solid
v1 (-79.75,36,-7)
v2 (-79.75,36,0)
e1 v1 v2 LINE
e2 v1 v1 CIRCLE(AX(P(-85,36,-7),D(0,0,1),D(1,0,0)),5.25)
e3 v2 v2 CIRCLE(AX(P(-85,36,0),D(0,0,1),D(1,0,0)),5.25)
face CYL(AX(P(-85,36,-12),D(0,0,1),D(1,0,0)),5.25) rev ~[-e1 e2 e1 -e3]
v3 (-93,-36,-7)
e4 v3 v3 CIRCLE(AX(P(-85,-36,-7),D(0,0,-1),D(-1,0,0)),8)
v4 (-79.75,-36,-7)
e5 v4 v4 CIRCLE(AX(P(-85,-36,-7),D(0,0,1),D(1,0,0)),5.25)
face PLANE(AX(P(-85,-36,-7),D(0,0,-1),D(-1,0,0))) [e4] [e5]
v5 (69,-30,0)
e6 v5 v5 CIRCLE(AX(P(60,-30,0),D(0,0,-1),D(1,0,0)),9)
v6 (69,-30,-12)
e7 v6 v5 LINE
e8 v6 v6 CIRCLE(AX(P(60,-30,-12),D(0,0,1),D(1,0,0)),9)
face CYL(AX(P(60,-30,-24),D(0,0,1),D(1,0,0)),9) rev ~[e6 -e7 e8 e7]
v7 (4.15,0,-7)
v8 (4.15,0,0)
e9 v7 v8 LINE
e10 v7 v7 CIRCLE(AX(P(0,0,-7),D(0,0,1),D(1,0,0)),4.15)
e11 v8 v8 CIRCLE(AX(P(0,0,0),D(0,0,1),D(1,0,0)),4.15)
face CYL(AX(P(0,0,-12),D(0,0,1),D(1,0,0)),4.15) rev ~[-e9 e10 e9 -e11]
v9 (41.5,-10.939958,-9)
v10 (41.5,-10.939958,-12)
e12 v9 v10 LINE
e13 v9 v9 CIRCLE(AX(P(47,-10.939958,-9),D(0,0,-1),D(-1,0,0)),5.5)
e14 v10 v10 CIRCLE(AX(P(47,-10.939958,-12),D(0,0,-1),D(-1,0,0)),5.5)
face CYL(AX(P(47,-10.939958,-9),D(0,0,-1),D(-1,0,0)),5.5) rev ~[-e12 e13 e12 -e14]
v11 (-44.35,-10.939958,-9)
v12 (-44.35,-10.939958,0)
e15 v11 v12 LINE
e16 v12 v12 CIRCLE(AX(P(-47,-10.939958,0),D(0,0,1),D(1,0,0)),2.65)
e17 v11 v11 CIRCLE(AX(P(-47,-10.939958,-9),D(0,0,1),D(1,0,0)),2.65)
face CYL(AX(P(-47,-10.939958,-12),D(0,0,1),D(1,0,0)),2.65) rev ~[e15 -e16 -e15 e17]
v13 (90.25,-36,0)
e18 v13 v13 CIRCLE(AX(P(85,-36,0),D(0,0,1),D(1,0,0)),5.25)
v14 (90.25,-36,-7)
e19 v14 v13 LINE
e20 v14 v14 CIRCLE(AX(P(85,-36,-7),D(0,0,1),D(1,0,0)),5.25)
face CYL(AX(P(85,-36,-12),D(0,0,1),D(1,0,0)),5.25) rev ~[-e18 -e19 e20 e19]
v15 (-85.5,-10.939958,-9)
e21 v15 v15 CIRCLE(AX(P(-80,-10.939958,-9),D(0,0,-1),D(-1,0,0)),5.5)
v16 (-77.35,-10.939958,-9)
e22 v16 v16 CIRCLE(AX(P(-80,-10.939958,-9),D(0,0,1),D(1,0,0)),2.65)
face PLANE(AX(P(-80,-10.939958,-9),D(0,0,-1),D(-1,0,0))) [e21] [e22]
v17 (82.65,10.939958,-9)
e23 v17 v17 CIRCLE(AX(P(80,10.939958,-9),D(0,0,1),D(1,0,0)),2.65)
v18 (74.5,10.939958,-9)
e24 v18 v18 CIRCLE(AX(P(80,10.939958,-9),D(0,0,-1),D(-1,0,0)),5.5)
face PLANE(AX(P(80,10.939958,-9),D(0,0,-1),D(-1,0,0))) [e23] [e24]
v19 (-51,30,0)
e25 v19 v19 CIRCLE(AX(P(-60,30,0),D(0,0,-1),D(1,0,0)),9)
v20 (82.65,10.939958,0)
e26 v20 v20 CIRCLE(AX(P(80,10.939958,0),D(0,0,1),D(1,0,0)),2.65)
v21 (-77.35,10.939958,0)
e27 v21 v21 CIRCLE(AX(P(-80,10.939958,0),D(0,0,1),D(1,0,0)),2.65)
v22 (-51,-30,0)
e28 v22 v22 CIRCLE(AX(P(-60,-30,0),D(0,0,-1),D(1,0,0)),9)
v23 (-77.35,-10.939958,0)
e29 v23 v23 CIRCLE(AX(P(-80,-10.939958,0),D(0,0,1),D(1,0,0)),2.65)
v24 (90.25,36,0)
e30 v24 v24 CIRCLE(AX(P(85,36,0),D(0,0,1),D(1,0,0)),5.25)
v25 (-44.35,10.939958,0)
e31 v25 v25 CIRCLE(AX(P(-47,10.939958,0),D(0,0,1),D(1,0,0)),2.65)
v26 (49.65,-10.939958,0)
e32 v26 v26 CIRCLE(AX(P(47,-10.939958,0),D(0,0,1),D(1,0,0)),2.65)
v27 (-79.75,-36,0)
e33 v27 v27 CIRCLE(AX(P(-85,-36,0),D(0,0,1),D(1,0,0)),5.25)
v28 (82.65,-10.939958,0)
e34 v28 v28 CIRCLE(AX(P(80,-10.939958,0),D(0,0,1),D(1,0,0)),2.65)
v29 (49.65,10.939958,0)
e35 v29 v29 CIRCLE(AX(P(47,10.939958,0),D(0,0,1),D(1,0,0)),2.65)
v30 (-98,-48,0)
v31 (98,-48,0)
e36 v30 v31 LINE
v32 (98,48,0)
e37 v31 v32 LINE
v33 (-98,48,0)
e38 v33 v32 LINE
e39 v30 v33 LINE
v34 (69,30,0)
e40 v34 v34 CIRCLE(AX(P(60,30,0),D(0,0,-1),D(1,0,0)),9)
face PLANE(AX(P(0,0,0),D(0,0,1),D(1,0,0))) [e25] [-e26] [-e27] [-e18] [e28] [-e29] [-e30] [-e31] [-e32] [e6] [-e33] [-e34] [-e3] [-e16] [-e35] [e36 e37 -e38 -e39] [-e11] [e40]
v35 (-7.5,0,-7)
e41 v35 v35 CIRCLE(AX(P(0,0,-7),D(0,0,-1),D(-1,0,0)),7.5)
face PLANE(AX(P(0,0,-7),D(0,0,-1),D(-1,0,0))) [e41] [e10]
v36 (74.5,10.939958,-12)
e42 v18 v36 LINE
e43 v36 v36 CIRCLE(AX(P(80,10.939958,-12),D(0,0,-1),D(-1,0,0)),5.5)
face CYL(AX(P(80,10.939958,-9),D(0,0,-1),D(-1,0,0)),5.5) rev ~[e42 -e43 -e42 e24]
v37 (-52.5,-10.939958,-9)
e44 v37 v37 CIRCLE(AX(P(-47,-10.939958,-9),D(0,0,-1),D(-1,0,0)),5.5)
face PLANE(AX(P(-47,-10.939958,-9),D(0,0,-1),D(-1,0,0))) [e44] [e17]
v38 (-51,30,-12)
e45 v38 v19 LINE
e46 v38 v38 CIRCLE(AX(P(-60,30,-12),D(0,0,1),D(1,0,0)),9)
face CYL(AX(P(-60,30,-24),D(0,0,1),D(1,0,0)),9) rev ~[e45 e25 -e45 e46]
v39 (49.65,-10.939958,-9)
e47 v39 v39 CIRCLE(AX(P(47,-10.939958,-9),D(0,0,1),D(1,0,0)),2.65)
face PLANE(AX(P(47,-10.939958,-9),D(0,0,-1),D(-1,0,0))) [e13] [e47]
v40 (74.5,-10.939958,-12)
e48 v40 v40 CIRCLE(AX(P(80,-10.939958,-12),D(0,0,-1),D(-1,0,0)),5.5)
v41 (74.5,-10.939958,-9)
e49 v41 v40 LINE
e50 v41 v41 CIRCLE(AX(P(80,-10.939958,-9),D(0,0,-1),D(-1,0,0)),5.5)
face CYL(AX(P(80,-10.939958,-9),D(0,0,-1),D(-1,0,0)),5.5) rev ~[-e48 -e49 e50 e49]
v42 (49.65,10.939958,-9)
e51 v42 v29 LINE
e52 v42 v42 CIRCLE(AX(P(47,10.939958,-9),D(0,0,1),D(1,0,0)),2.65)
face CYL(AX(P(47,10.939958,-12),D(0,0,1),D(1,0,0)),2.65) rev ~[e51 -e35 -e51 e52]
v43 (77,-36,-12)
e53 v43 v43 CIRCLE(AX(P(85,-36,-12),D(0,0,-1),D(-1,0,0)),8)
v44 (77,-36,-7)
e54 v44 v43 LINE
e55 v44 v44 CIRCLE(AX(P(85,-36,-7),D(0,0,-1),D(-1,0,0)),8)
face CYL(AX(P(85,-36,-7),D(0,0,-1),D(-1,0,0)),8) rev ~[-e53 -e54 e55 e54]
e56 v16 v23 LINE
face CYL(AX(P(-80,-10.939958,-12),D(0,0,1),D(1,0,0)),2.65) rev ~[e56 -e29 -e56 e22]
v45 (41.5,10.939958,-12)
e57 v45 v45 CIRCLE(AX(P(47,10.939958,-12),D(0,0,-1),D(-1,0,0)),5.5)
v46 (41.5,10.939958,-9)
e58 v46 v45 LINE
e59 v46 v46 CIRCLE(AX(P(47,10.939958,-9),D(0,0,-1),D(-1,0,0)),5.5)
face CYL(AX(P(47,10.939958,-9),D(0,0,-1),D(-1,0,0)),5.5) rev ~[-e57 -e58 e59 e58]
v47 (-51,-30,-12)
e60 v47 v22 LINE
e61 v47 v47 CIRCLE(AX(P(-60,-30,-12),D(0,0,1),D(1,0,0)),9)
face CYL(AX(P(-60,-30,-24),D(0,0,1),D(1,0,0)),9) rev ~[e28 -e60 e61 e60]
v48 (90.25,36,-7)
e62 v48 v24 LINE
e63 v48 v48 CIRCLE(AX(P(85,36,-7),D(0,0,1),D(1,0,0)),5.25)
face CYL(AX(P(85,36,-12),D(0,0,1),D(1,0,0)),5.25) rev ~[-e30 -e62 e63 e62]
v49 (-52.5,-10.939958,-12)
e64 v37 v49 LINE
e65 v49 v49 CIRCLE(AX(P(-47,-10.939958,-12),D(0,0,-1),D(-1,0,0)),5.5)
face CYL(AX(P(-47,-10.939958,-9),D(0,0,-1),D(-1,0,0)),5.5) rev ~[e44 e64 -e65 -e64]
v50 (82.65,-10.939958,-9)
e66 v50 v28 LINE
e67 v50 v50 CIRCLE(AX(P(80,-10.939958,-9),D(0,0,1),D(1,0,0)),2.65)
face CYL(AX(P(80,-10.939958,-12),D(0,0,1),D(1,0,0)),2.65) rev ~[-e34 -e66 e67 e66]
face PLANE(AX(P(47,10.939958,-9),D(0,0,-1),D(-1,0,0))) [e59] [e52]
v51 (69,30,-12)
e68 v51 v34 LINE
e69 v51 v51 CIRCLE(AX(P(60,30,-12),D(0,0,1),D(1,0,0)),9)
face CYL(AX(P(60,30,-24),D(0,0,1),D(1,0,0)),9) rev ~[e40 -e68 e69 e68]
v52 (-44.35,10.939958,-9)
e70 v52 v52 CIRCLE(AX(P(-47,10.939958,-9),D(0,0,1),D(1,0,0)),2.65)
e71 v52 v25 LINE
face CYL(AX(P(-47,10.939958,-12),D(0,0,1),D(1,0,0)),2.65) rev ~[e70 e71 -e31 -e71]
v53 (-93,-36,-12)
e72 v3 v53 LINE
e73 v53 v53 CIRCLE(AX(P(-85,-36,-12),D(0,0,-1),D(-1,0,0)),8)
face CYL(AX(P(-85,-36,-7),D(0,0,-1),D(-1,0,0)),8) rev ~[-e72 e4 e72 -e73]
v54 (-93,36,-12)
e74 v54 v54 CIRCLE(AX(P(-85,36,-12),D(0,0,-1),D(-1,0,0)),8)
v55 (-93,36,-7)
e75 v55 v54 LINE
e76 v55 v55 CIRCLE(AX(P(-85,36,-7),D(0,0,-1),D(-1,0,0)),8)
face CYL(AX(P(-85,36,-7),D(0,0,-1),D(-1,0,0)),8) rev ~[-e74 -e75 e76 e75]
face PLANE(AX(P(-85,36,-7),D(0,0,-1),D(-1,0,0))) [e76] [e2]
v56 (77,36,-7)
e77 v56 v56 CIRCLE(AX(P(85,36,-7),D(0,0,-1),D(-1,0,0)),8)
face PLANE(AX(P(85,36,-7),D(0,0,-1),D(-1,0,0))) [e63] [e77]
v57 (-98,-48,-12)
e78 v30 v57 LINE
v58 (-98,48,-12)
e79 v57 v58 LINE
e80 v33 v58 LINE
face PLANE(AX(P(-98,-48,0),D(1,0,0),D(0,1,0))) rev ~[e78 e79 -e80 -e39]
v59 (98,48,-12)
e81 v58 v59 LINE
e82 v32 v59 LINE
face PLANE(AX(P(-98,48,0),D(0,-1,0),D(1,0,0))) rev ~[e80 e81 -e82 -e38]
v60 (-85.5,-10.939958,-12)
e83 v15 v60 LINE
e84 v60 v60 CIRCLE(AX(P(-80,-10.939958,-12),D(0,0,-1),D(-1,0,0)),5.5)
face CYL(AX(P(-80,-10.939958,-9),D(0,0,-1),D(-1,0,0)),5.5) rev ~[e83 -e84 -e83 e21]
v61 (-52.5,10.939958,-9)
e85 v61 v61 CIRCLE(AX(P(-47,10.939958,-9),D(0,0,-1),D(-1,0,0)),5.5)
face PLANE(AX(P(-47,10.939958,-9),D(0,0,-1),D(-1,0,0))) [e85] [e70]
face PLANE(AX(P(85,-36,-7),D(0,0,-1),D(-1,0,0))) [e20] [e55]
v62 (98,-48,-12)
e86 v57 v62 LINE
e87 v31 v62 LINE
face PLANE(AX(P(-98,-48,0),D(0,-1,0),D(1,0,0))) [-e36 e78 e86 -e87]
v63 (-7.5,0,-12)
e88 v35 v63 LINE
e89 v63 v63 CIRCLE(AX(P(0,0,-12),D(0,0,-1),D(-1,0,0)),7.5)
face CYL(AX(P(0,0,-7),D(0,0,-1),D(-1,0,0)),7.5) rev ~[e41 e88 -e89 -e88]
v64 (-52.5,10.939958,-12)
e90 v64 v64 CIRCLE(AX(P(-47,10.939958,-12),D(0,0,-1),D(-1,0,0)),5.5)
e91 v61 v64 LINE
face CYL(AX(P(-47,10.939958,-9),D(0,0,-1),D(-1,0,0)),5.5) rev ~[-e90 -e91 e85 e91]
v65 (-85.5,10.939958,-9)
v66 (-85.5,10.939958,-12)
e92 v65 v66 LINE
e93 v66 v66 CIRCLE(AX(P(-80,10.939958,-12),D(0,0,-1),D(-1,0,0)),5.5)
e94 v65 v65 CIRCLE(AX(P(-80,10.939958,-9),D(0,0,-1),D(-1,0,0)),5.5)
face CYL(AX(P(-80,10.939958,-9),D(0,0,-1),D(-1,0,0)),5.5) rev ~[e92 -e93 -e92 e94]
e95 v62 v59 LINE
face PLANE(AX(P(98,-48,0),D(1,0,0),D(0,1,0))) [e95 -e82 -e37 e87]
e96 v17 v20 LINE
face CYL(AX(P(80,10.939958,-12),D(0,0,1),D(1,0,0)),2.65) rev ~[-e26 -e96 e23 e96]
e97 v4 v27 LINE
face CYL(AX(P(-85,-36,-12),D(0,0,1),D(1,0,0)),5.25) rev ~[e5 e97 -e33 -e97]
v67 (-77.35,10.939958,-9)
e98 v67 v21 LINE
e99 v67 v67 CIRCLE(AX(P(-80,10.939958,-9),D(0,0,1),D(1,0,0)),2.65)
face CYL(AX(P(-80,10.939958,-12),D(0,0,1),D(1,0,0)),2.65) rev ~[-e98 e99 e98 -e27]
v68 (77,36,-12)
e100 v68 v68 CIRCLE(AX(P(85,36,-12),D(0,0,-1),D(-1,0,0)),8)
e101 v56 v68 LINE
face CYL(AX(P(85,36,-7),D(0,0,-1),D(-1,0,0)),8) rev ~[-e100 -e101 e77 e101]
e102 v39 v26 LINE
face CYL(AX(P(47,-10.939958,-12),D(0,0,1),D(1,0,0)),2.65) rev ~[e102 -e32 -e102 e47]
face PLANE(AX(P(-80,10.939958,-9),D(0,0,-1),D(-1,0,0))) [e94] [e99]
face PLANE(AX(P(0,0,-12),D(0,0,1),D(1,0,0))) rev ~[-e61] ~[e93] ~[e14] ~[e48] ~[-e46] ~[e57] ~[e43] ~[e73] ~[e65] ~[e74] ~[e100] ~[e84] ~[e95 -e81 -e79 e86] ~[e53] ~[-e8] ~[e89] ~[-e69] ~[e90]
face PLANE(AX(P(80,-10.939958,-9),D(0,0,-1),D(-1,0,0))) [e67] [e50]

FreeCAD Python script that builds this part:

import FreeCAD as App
import Part
import Sketcher

V = App.Vector
Q = App.Units.Quantity

doc = App.newDocument("Part")
body = doc.addObject("PartDesign::Body", "Body")

sketch1 = body.newObject("Sketcher::SketchObject", "Sketch")
sketch1.AttachmentSupport = (doc.getObject("XY_Plane"), [""])
sketch1.MapMode = "FlatFace"
sketch1.addGeometry([
    Part.LineSegment(V(-98, 48, 0), V(-98, -48, 0)),
    Part.LineSegment(V(-98, -48, 0), V(98, -48, 0)),
    Part.LineSegment(V(98, -48, 0), V(98, 48, 0)),
    Part.LineSegment(V(98, 48, 0), V(-98, 48, 0)),
], False)
sketch1.addConstraint([
    Sketcher.Constraint("Coincident", 0, 2, 1, 1),
    Sketcher.Constraint("Coincident", 1, 2, 2, 1),
    Sketcher.Constraint("Coincident", 2, 2, 3, 1),
    Sketcher.Constraint("Coincident", 3, 2, 0, 1),
    Sketcher.Constraint("Vertical", 0),
    Sketcher.Constraint("Horizontal", 1),
    Sketcher.Constraint("Vertical", 2),
    Sketcher.Constraint("Horizontal", 3),
    Sketcher.Constraint("Symmetric", 0, 2, 2, 2, -1, 1),
    Sketcher.Constraint("DistanceX", 1, 1, 1, 2, Q("196 mm")),
    Sketcher.Constraint("DistanceY", 0, 2, 0, 1, Q("96 mm")),
])
pad1 = body.newObject("PartDesign::Pad", "Pad")
pad1.Profile = sketch1
pad1.Length = 12
pad1.Reversed = True

sketch2 = body.newObject("Sketcher::SketchObject", "Sketch001")
sketch2.AttachmentSupport = (doc.getObject("XY_Plane"), [""])
sketch2.MapMode = "FlatFace"
sketch2.AttachmentOffset = App.Placement(V(0, 0, -12), App.Rotation())
sketch2.addGeometry([
    Part.Circle(V(85, 36, 0), V(0, 0, 1), 5),
    Part.Circle(V(-85, 36, 0), V(0, 0, 1), 5),
    Part.Circle(V(-85, -36, 0), V(0, 0, 1), 5),
    Part.Circle(V(85, -36, 0), V(0, 0, 1), 5),
], False)
sketch2.addConstraint([
    Sketcher.Constraint("Equal", 0, 1),
    Sketcher.Constraint("Equal", 1, 2),
    Sketcher.Constraint("Equal", 2, 3),
    Sketcher.Constraint("Symmetric", 0, 3, 2, 3, -1, 1),
    Sketcher.Constraint("Symmetric", 1, 3, 3, 3, -1, 1),
    Sketcher.Constraint("Symmetric", 0, 3, 1, 3, -2),
    Sketcher.Constraint("Diameter", 0, Q("10.5 mm")),
    Sketcher.Constraint("DistanceX", -1, 1, 0, 3, Q("85 mm")),
    Sketcher.Constraint("DistanceY", -1, 1, 0, 3, Q("36 mm")),
])
doc.recompute()
hole = body.newObject("PartDesign::Hole", "Hole")
hole.Profile = sketch2
hole.ThreadType = "None"
hole.Diameter = 10.5
hole.DepthType = "ThroughAll"
hole.HoleCutType = "Counterbore"
hole.HoleCutDiameter = 16
hole.HoleCutDepth = 5
hole.Reversed = True

sketch3 = body.newObject("Sketcher::SketchObject", "Sketch002")
sketch3.AttachmentSupport = (doc.getObject("XY_Plane"), [""])
sketch3.MapMode = "FlatFace"
sketch3.AttachmentOffset = App.Placement(V(0, 0, -12), App.Rotation())
sketch3.addGeometry([
    Part.Circle(V(-47, 10.9, 0), V(0, 0, 1), 2.6),
    Part.Circle(V(-80, 10.9, 0), V(0, 0, 1), 2.6),
    Part.Circle(V(-80, -10.9, 0), V(0, 0, 1), 2.6),
    Part.Circle(V(-47, -10.9, 0), V(0, 0, 1), 2.6),
    Part.Circle(V(47, 10.9, 0), V(0, 0, 1), 2.6),
    Part.Circle(V(47, -10.9, 0), V(0, 0, 1), 2.6),
    Part.Circle(V(80, 10.9, 0), V(0, 0, 1), 2.6),
    Part.Circle(V(80, -10.9, 0), V(0, 0, 1), 2.6),
], False)
sketch3.addConstraint([
    Sketcher.Constraint("Equal", 0, 1),
    Sketcher.Constraint("Equal", 1, 2),
    Sketcher.Constraint("Equal", 2, 3),
    Sketcher.Constraint("Equal", 3, 4),
    Sketcher.Constraint("Equal", 4, 5),
    Sketcher.Constraint("Equal", 5, 6),
    Sketcher.Constraint("Equal", 6, 7),
    Sketcher.Constraint("Symmetric", 3, 3, 4, 3, -1, 1),
    Sketcher.Constraint("Symmetric", 0, 3, 5, 3, -1, 1),
    Sketcher.Constraint("Symmetric", 2, 3, 6, 3, -1, 1),
    Sketcher.Constraint("Symmetric", 1, 3, 7, 3, -1, 1),
    Sketcher.Constraint("Symmetric", 0, 3, 4, 3, -2),
    Sketcher.Constraint("Symmetric", 1, 3, 6, 3, -2),
    Sketcher.Constraint("Horizontal", 0, 3, 1, 3),
    Sketcher.Constraint("Diameter", 0, Q("5.3 mm")),
    Sketcher.Constraint("DistanceX", 0, 3, -1, 1, Q("47 mm")),
    Sketcher.Constraint("DistanceX", 1, 3, -1, 1, Q("80 mm")),
    Sketcher.Constraint("DistanceY", -1, 1, 0, 3, Q("10.939958 mm")),
])
doc.recompute()
hole2 = body.newObject("PartDesign::Hole", "Hole001")
hole2.Profile = sketch3
hole2.ThreadType = "None"
hole2.Diameter = 5.3
hole2.DepthType = "ThroughAll"
hole2.HoleCutType = "Counterbore"
hole2.HoleCutDiameter = 11
hole2.HoleCutDepth = 3
hole2.Reversed = True

sketch4 = body.newObject("Sketcher::SketchObject", "Sketch003")
sketch4.AttachmentSupport = (doc.getObject("XY_Plane"), [""])
sketch4.MapMode = "FlatFace"
sketch4.AttachmentOffset = App.Placement(V(0, 0, -12), App.Rotation())
sketch4.addGeometry(Part.Circle(V(0, 0, 0), V(0, 0, 1), 4.2), False)
sketch4.addConstraint([
    Sketcher.Constraint("Coincident", 0, 3, -1, 1),
    Sketcher.Constraint("Diameter", 0, Q("8.3 mm")),
])
doc.recompute()
hole3 = body.newObject("PartDesign::Hole", "Hole002")
hole3.Profile = sketch4
hole3.ThreadType = "None"
hole3.Diameter = 8.3
hole3.DepthType = "ThroughAll"
hole3.HoleCutType = "Counterbore"
hole3.HoleCutDiameter = 15
hole3.HoleCutDepth = 5
hole3.Reversed = True

sketch5 = body.newObject("Sketcher::SketchObject", "Sketch004")
sketch5.AttachmentSupport = (doc.getObject("XY_Plane"), [""])
sketch5.MapMode = "FlatFace"
sketch5.AttachmentOffset = App.Placement(V(0, 0, -12), App.Rotation())
sketch5.addGeometry([
    Part.Circle(V(60, 30, 0), V(0, 0, 1), 9),
    Part.Circle(V(-60, 30, 0), V(0, 0, 1), 9),
    Part.Circle(V(-60, -30, 0), V(0, 0, 1), 9),
    Part.Circle(V(60, -30, 0), V(0, 0, 1), 9),
], False)
sketch5.addConstraint([
    Sketcher.Constraint("Equal", 0, 1),
    Sketcher.Constraint("Equal", 1, 2),
    Sketcher.Constraint("Equal", 2, 3),
    Sketcher.Constraint("Symmetric", 0, 3, 2, 3, -1, 1),
    Sketcher.Constraint("Symmetric", 1, 3, 3, 3, -1, 1),
    Sketcher.Constraint("Symmetric", 0, 3, 1, 3, -2),
    Sketcher.Constraint("Diameter", 0, Q("18 mm")),
    Sketcher.Constraint("DistanceX", -1, 1, 0, 3, Q("60 mm")),
    Sketcher.Constraint("DistanceY", -1, 1, 0, 3, Q("30 mm")),
])
doc.recompute()
hole4 = body.newObject("PartDesign::Hole", "Hole003")
hole4.Profile = sketch5
hole4.ThreadType = "None"
hole4.Diameter = 18
hole4.DepthType = "Dimension"
hole4.Depth = 12
hole4.DrillPoint = "Angled"
hole4.DrillPointAngle = 118
hole4.Reversed = True

doc.recompute()
